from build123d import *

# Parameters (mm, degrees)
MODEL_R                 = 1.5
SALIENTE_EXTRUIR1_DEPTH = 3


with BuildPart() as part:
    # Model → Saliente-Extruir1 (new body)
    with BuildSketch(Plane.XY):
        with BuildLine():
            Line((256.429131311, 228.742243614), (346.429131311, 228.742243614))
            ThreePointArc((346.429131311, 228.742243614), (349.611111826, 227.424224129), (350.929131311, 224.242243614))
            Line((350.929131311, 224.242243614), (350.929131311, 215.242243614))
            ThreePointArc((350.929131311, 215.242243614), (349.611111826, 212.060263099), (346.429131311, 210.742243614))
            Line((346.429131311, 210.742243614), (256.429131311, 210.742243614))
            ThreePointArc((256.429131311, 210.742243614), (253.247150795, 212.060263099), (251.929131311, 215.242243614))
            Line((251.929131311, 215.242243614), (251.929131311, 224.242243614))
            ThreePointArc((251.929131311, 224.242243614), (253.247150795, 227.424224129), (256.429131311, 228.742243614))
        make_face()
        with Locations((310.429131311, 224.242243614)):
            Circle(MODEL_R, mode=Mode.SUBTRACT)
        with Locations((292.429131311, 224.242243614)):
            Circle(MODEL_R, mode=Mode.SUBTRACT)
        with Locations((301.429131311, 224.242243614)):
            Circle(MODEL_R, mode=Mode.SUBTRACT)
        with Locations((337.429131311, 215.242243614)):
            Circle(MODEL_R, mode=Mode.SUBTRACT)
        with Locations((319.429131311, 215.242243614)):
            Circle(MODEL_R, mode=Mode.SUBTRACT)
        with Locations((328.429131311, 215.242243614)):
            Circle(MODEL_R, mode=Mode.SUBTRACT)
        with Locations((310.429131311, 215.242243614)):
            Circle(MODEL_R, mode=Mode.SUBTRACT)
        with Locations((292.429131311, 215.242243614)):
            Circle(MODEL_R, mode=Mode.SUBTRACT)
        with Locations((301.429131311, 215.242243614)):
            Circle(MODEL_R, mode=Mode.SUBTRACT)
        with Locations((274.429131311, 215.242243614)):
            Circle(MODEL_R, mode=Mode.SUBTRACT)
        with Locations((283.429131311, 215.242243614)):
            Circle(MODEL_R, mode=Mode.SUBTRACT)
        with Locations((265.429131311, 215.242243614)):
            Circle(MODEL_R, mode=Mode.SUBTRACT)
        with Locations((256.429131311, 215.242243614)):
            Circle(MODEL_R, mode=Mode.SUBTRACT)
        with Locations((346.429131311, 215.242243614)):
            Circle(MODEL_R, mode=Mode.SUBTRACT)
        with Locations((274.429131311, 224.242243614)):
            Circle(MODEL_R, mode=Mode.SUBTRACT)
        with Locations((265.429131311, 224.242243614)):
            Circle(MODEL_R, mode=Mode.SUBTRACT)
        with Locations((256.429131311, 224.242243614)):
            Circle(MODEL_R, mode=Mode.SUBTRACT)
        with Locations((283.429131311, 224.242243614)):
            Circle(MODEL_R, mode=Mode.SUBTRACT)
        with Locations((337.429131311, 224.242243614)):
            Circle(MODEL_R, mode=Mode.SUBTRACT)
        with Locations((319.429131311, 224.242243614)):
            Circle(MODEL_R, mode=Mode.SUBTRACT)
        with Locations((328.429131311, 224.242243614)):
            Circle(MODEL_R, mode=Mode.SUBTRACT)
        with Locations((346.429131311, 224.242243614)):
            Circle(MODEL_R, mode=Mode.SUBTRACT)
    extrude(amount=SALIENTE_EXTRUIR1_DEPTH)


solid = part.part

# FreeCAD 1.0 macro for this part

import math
import FreeCAD as App
import Part
import Sketcher
from FreeCAD import Vector
Q = App.Units.Quantity

doc = App.newDocument("Part")
body = doc.addObject("PartDesign::Body", "Body")

sketch1 = body.newObject("Sketcher::SketchObject", "Sketch")
sketch1.AttachmentSupport = (doc.getObject("XY_Plane"), [""])
sketch1.MapMode = "FlatFace"
sketch1.addGeometry([
    Part.LineSegment(Vector(346.4, 228.7, 0), Vector(256.4, 228.7, 0)),
    Part.ArcOfCircle(Part.Circle(Vector(256.4, 224.2, 0), Vector(0, 0, 1), 4.5), math.radians(90), math.radians(180)),
    Part.LineSegment(Vector(251.9, 224.2, 0), Vector(251.9, 215.2, 0)),
    Part.ArcOfCircle(Part.Circle(Vector(256.4, 215.2, 0), Vector(0, 0, 1), 4.5), math.radians(180), math.radians(270)),
    Part.LineSegment(Vector(256.4, 210.7, 0), Vector(346.4, 210.7, 0)),
    Part.ArcOfCircle(Part.Circle(Vector(346.4, 215.2, 0), Vector(0, 0, 1), 4.5), math.radians(-90), math.radians(0)),
    Part.LineSegment(Vector(350.9, 215.2, 0), Vector(350.9, 224.2, 0)),
    Part.ArcOfCircle(Part.Circle(Vector(346.4, 224.2, 0), Vector(0, 0, 1), 4.5), math.radians(0), math.radians(90)),
    Part.Circle(Vector(346.4, 215.2, 0), Vector(0, 0, 1), 1.5),
    Part.Circle(Vector(337.4, 215.2, 0), Vector(0, 0, 1), 1.5),
    Part.Circle(Vector(328.4, 215.2, 0), Vector(0, 0, 1), 1.5),
    Part.Circle(Vector(319.4, 215.2, 0), Vector(0, 0, 1), 1.5),
    Part.Circle(Vector(310.4, 215.2, 0), Vector(0, 0, 1), 1.5),
    Part.Circle(Vector(301.4, 215.2, 0), Vector(0, 0, 1), 1.5),
    Part.Circle(Vector(292.4, 215.2, 0), Vector(0, 0, 1), 1.5),
    Part.Circle(Vector(283.4, 215.2, 0), Vector(0, 0, 1), 1.5),
    Part.Circle(Vector(274.4, 215.2, 0), Vector(0, 0, 1), 1.5),
    Part.Circle(Vector(265.4, 215.2, 0), Vector(0, 0, 1), 1.5),
    Part.Circle(Vector(256.4, 215.2, 0), Vector(0, 0, 1), 1.5),
    Part.Circle(Vector(346.4, 224.2, 0), Vector(0, 0, 1), 1.5),
    Part.Circle(Vector(337.4, 224.2, 0), Vector(0, 0, 1), 1.5),
    Part.Circle(Vector(328.4, 224.2, 0), Vector(0, 0, 1), 1.5),
    Part.Circle(Vector(319.4, 224.2, 0), Vector(0, 0, 1), 1.5),
    Part.Circle(Vector(310.4, 224.2, 0), Vector(0, 0, 1), 1.5),
    Part.Circle(Vector(301.4, 224.2, 0), Vector(0, 0, 1), 1.5),
    Part.Circle(Vector(292.4, 224.2, 0), Vector(0, 0, 1), 1.5),
    Part.Circle(Vector(283.4, 224.2, 0), Vector(0, 0, 1), 1.5),
    Part.Circle(Vector(274.4, 224.2, 0), Vector(0, 0, 1), 1.5),
    Part.Circle(Vector(265.4, 224.2, 0), Vector(0, 0, 1), 1.5),
    Part.Circle(Vector(256.4, 224.2, 0), Vector(0, 0, 1), 1.5),
], False)
sketch1.addConstraint([
    Sketcher.Constraint("Tangent", 0, 2, 1, 1),
    Sketcher.Constraint("Tangent", 1, 2, 2, 1),
    Sketcher.Constraint("Tangent", 2, 2, 3, 1),
    Sketcher.Constraint("Tangent", 3, 2, 4, 1),
    Sketcher.Constraint("Tangent", 4, 2, 5, 1),
    Sketcher.Constraint("Tangent", 5, 2, 6, 1),
    Sketcher.Constraint("Tangent", 6, 2, 7, 1),
    Sketcher.Constraint("Tangent", 7, 2, 0, 1),
    Sketcher.Constraint("Horizontal", 0),
    Sketcher.Constraint("Vertical", 2),
    Sketcher.Constraint("Horizontal", 4),
    Sketcher.Constraint("Vertical", 6),
    Sketcher.Constraint("Coincident", 8, 3, 5, 3),
    Sketcher.Constraint("Coincident", 18, 3, 3, 3),
    Sketcher.Constraint("Coincident", 19, 3, 7, 3),
    Sketcher.Constraint("Coincident", 29, 3, 1, 3),
    Sketcher.Constraint("Equal", 1, 3),
    Sketcher.Constraint("Equal", 3, 5),
    Sketcher.Constraint("Equal", 5, 7),
    Sketcher.Constraint("Equal", 8, 9),
    Sketcher.Constraint("Equal", 9, 10),
    Sketcher.Constraint("Equal", 10, 11),
    Sketcher.Constraint("Equal", 11, 12),
    Sketcher.Constraint("Equal", 12, 13),
    Sketcher.Constraint("Equal", 13, 14),
    Sketcher.Constraint("Equal", 14, 15),
    Sketcher.Constraint("Equal", 15, 16),
    Sketcher.Constraint("Equal", 16, 17),
    Sketcher.Constraint("Equal", 17, 18),
    Sketcher.Constraint("Equal", 18, 19),
    Sketcher.Constraint("Equal", 19, 20),
    Sketcher.Constraint("Equal", 20, 21),
    Sketcher.Constraint("Equal", 21, 22),
    Sketcher.Constraint("Equal", 22, 23),
    Sketcher.Constraint("Equal", 23, 24),
    Sketcher.Constraint("Equal", 24, 25),
    Sketcher.Constraint("Equal", 25, 26),
    Sketcher.Constraint("Equal", 26, 27),
    Sketcher.Constraint("Equal", 27, 28),
    Sketcher.Constraint("Equal", 28, 29),
    Sketcher.Constraint("Horizontal", 8, 3, 9, 3),
    Sketcher.Constraint("Horizontal", 9, 3, 10, 3),
    Sketcher.Constraint("Horizontal", 10, 3, 11, 3),
    Sketcher.Constraint("Horizontal", 11, 3, 12, 3),
    Sketcher.Constraint("Horizontal", 12, 3, 13, 3),
    Sketcher.Constraint("Horizontal", 13, 3, 14, 3),
    Sketcher.Constraint("Horizontal", 14, 3, 15, 3),
    Sketcher.Constraint("Horizontal", 15, 3, 16, 3),
    Sketcher.Constraint("Horizontal", 16, 3, 17, 3),
    Sketcher.Constraint("Horizontal", 19, 3, 20, 3),
    Sketcher.Constraint("Horizontal", 20, 3, 21, 3),
    Sketcher.Constraint("Horizontal", 21, 3, 22, 3),
    Sketcher.Constraint("Horizontal", 22, 3, 23, 3),
    Sketcher.Constraint("Horizontal", 23, 3, 24, 3),
    Sketcher.Constraint("Horizontal", 24, 3, 25, 3),
    Sketcher.Constraint("Horizontal", 25, 3, 26, 3),
    Sketcher.Constraint("Horizontal", 26, 3, 27, 3),
    Sketcher.Constraint("Horizontal", 27, 3, 28, 3),
    Sketcher.Constraint("Vertical", 9, 3, 20, 3),
    Sketcher.Constraint("Vertical", 10, 3, 21, 3),
    Sketcher.Constraint("Vertical", 11, 3, 22, 3),
    Sketcher.Constraint("Vertical", 12, 3, 23, 3),
    Sketcher.Constraint("Vertical", 13, 3, 24, 3),
    Sketcher.Constraint("Vertical", 14, 3, 25, 3),
    Sketcher.Constraint("Vertical", 15, 3, 26, 3),
    Sketcher.Constraint("Vertical", 16, 3, 27, 3),
    Sketcher.Constraint("Vertical", 17, 3, 28, 3),
    Sketcher.Constraint("Diameter", 8, Q("3 mm")),
    Sketcher.Constraint("Radius", 1, Q("4.5 mm")),
    Sketcher.Constraint("DistanceX", 0, 2, 0, 1, Q("90 mm")),
    Sketcher.Constraint("DistanceY", 2, 2, 2, 1, Q("9 mm")),
    Sketcher.Constraint("DistanceX", 9, 3, 5, 3, Q("9 mm")),
    Sketcher.Constraint("DistanceX", 10, 3, 9, 3, Q("9 mm")),
    Sketcher.Constraint("DistanceX", 11, 3, 10, 3, Q("9 mm")),
    Sketcher.Constraint("DistanceX", 12, 3, 11, 3, Q("9 mm")),
    Sketcher.Constraint("DistanceX", 13, 3, 12, 3, Q("9 mm")),
    Sketcher.Constraint("DistanceX", 14, 3, 13, 3, Q("9 mm")),
    Sketcher.Constraint("DistanceX", 15, 3, 14, 3, Q("9 mm")),
    Sketcher.Constraint("DistanceX", 16, 3, 15, 3, Q("9 mm")),
    Sketcher.Constraint("DistanceX", 17, 3, 16, 3, Q("9 mm")),
    Sketcher.Constraint("DistanceX", -1, 1, 1, 3, Q("256.429131 mm")),
    Sketcher.Constraint("DistanceY", -1, 1, 1, 3, Q("224.242244 mm")),
])
pad1 = body.newObject("PartDesign::Pad", "Pad")
pad1.Profile = sketch1
pad1.Length = 3

doc.recompute()
